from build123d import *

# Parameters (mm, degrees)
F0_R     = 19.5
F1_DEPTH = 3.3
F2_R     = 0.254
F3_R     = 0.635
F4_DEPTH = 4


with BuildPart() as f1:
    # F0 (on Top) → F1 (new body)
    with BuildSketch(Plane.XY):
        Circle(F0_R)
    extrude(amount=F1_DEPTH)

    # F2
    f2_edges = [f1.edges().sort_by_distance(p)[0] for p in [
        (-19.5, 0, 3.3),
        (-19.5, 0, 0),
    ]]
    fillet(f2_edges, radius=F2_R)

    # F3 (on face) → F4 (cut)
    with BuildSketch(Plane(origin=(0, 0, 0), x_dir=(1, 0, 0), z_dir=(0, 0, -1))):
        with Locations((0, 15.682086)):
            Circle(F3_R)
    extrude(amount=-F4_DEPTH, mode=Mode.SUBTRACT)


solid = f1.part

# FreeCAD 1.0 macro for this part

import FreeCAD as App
import Part
import Sketcher
Q = App.Units.Quantity


def edges_at(feature, points):
    """Names of the edges that pass closest to the given points."""
    edges = feature.Shape.Edges
    near = lambda p: min(range(len(edges)), key=lambda i: edges[i].distToShape(Part.Vertex(*p))[0])
    return sorted({f"Edge{near(p) + 1}" for p in points})

doc = App.newDocument("Part")
body = doc.addObject("PartDesign::Body", "Body")

# Sketch on XY plane
sketch1 = body.newObject("Sketcher::SketchObject", "Sketch")
sketch1.AttachmentSupport = (doc.getObject("XY_Plane"), [""])
sketch1.MapMode = "FlatFace"
sketch1.addGeometry(Part.Circle(App.Vector(0, 0, 0), App.Vector(0, 0, 1), 20), False)
sketch1.addConstraint(Sketcher.Constraint("Coincident", 0, 3, -1, 1))
sketch1.addConstraint(Sketcher.Constraint("Diameter", 0, Q("39 mm")))
pad1 = body.newObject("PartDesign::Pad", "Pad")
pad1.Profile = sketch1
pad1.Length = 3.3
doc.recompute()

fillet = body.newObject("PartDesign::Fillet", "Fillet")
fillet.Base = (pad1, edges_at(pad1, [(-19.5, 0, 3.3), (-19.5, 0, 0)]))
fillet.Radius = 0.254

# Sketch on XY plane
sketch2 = body.newObject("Sketcher::SketchObject", "Sketch001")
sketch2.AttachmentSupport = (doc.getObject("XY_Plane"), [""])
sketch2.MapMode = "FlatFace"
sketch2.addGeometry(Part.Circle(App.Vector(0, -15.7, 0), App.Vector(0, 0, 1), 0.6), False)
sketch2.addConstraint(Sketcher.Constraint("PointOnObject", 0, 3, -2))
sketch2.addConstraint(Sketcher.Constraint("Diameter", 0, Q("1.27 mm")))
sketch2.addConstraint(Sketcher.Constraint("DistanceY", 0, 3, -1, 1, Q("15.682086 mm")))
pocket1 = body.newObject("PartDesign::Pocket", "Pocket")
pocket1.Profile = sketch2
pocket1.Length = 4
pocket1.Reversed = True

doc.recompute()
